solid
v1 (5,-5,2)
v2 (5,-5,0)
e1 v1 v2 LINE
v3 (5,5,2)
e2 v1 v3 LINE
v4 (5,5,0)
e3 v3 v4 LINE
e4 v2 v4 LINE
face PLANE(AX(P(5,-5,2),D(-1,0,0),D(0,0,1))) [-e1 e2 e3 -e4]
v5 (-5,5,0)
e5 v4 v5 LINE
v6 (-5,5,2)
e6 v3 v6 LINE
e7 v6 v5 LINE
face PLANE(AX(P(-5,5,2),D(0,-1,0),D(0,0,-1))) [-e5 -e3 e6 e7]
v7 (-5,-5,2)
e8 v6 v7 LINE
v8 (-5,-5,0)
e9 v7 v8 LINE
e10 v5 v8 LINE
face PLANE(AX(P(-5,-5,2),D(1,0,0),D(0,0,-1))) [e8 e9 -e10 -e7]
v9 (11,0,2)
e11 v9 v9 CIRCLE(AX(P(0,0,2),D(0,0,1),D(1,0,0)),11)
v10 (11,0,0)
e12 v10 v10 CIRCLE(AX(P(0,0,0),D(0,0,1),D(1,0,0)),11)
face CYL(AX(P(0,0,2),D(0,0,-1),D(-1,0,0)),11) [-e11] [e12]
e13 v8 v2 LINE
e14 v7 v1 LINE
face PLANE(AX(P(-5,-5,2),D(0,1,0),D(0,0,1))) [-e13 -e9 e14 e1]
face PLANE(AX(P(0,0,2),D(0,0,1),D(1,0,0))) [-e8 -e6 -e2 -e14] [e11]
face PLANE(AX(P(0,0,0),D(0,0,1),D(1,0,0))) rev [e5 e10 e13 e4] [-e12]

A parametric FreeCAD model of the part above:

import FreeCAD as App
import Part
import Sketcher
Q = App.Units.Quantity


def add_polygon(sketch, points):
    """Adds a closed chain of lines whose ends are joined by coincident constraints."""
    first, n = sketch.GeometryCount, len(points)
    for a, b in zip(points, points[1:] + points[:1]):
        sketch.addGeometry(Part.LineSegment(App.Vector(*a, 0), App.Vector(*b, 0)), False)
    for i in range(n):
        sketch.addConstraint(Sketcher.Constraint("Coincident", first + i, 2, first + (i + 1) % n, 1))

doc = App.newDocument("Part")
body = doc.addObject("PartDesign::Body", "Body")

sketch1 = body.newObject("Sketcher::SketchObject", "Sketch")
sketch1.AttachmentSupport = (doc.getObject("XY_Plane"), [""])
sketch1.MapMode = "FlatFace"
sketch1.addGeometry(Part.Circle(App.Vector(0, 0, 0), App.Vector(0, 0, 1), 11), False)
add_polygon(sketch1, [(5, -5), (-5, -5), (-5, 5), (5, 5)])
sketch1.addConstraint([
    Sketcher.Constraint("Horizontal", 1),
    Sketcher.Constraint("Vertical", 2),
    Sketcher.Constraint("Horizontal", 3),
    Sketcher.Constraint("Vertical", 4),
    Sketcher.Constraint("Coincident", 0, 3, -1, 1),
    Sketcher.Constraint("Symmetric", 1, 2, 3, 2, -1, 1),
    Sketcher.Constraint("Equal", 3, 2),
    Sketcher.Constraint("Diameter", 0, Q("22 mm")),
    Sketcher.Constraint("DistanceX", 1, 2, 1, 1, Q("10 mm")),
])
pad1 = body.newObject("PartDesign::Pad", "Pad")
pad1.Profile = sketch1
pad1.Length = 2

doc.recompute()
